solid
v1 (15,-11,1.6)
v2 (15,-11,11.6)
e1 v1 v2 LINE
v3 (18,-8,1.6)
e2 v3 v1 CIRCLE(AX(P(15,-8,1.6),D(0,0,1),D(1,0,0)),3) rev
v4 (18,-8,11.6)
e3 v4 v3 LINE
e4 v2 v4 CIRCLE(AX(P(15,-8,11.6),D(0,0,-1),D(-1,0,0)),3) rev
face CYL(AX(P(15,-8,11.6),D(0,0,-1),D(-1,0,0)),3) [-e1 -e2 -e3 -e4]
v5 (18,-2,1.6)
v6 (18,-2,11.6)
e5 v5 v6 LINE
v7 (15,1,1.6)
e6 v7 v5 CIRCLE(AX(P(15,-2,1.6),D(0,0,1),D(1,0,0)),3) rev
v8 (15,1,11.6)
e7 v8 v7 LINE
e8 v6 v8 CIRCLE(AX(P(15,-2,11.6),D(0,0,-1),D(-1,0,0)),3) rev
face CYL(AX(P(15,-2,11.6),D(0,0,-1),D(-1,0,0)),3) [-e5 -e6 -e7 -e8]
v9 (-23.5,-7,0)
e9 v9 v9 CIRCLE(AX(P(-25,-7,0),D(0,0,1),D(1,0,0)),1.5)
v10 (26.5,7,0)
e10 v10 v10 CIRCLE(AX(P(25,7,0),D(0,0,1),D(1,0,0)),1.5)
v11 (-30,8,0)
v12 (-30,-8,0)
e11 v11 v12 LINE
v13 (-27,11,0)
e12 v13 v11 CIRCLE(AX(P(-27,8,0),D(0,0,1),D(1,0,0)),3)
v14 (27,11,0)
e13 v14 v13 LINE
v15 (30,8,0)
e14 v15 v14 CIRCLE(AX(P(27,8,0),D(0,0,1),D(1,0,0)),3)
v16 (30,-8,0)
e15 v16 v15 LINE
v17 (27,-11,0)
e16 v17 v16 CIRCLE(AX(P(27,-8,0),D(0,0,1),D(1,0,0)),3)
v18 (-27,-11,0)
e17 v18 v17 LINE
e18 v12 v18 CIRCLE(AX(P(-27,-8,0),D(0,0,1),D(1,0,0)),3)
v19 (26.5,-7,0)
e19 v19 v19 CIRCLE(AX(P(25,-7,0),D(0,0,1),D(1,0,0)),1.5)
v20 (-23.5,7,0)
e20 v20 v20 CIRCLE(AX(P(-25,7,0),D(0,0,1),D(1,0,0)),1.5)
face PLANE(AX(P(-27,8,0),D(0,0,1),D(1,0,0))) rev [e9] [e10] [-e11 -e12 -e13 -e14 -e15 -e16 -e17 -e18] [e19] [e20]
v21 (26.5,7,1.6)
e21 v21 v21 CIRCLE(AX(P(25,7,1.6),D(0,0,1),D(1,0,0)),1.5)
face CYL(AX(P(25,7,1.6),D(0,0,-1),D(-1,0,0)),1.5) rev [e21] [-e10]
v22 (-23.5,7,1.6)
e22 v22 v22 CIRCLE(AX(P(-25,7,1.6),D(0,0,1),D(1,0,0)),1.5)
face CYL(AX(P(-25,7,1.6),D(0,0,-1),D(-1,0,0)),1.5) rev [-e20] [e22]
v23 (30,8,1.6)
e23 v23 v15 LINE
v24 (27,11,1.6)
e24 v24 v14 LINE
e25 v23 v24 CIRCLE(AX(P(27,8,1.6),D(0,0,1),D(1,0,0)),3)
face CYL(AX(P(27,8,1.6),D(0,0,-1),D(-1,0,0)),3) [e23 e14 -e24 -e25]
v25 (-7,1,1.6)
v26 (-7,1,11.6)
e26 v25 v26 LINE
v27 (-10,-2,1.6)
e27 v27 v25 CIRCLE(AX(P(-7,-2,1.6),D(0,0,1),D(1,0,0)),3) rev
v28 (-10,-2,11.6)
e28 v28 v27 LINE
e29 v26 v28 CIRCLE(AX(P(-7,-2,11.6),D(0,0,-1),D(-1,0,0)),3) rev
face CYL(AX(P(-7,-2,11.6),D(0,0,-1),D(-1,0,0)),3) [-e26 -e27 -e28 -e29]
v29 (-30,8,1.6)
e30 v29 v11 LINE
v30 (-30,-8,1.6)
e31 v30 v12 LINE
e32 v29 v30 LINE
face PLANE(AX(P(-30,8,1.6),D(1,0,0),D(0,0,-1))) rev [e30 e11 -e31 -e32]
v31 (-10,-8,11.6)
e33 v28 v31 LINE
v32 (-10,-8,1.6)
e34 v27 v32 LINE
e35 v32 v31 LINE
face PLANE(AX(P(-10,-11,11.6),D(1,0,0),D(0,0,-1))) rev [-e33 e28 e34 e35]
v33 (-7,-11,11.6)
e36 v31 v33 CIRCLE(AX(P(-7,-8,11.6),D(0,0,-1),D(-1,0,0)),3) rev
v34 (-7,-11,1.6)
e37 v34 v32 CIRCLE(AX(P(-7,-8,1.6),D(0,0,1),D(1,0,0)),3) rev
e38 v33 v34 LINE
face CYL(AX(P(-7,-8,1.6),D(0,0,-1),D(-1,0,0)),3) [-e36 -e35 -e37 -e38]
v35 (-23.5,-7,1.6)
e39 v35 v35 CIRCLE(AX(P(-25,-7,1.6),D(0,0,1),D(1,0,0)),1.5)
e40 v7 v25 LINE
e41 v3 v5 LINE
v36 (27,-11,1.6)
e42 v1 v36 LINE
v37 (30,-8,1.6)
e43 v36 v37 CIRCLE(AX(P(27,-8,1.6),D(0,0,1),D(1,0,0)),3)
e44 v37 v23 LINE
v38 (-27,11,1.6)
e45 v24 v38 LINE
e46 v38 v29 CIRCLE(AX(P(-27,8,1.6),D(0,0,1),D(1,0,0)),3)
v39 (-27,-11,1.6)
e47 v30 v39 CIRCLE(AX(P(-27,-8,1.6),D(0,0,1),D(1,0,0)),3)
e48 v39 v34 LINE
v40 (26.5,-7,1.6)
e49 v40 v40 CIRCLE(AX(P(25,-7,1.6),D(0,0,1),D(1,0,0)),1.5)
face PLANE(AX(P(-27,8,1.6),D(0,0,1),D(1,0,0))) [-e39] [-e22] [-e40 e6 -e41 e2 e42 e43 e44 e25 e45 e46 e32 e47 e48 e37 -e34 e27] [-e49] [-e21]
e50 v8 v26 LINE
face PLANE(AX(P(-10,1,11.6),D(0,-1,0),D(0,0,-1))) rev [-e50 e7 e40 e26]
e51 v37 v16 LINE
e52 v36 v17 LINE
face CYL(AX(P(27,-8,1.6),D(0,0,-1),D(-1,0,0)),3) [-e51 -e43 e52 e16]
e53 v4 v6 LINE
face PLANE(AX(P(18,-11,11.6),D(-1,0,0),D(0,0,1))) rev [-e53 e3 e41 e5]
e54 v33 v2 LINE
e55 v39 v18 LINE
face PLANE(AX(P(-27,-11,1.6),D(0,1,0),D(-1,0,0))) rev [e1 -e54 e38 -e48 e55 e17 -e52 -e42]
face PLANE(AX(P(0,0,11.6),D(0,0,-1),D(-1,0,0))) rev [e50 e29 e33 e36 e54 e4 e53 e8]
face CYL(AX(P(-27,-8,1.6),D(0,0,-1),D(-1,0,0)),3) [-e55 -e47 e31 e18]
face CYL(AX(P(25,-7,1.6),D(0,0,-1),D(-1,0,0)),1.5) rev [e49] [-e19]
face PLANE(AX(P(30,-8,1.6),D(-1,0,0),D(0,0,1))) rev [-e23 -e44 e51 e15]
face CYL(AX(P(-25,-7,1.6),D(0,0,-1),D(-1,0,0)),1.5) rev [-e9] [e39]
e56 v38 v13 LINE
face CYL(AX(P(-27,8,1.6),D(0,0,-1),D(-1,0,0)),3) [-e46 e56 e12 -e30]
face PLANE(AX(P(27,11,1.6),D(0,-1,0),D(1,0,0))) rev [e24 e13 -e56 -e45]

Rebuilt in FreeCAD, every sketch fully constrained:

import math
import FreeCAD as App
import Part
import Sketcher

V = App.Vector


def edges_at(feature, points):
    """Names of the edges that pass closest to the given points."""
    edges = feature.Shape.Edges
    near = lambda p: min(range(len(edges)), key=lambda i: edges[i].distToShape(Part.Vertex(*p))[0])
    return sorted({f"Edge{near(p) + 1}" for p in points})

doc = App.newDocument("Part")
body = doc.addObject("PartDesign::Body", "Body")

# Sketch on XY plane
sketch1 = body.newObject("Sketcher::SketchObject", "Sketch")
sketch1.AttachmentSupport = (doc.getObject("XY_Plane"), [""])
sketch1.MapMode = "FlatFace"
sketch1.addGeometry([
    Part.LineSegment(V(-30, 8, 0), V(-30, -8, 0)),  # 0
    Part.ArcOfCircle(Part.Circle(V(-27, -8, 0), V(0, 0, 1), 3), math.radians(180), math.radians(270)),  # 1
    Part.LineSegment(V(-27, -11, 0), V(27, -11, 0)),  # 2
    Part.ArcOfCircle(Part.Circle(V(27, -8, 0), V(0, 0, 1), 3), math.radians(-90), math.radians(0)),  # 3
    Part.LineSegment(V(30, -8, 0), V(30, 8, 0)),  # 4
    Part.ArcOfCircle(Part.Circle(V(27, 8, 0), V(0, 0, 1), 3), math.radians(0), math.radians(90)),  # 5
    Part.LineSegment(V(27, 11, 0), V(-27, 11, 0)),  # 6
    Part.ArcOfCircle(Part.Circle(V(-27, 8, 0), V(0, 0, 1), 3), math.radians(90), math.radians(180)),  # 7
    Part.Circle(V(-25, -7, 0), V(0, 0, 1), 1.5),  # 8
    Part.Circle(V(25, -7, 0), V(0, 0, 1), 1.5),  # 9
    Part.Circle(V(-25, 7, 0), V(0, 0, 1), 1.5),  # 10
    Part.Circle(V(25, 7, 0), V(0, 0, 1), 1.5),  # 11
], False)
sketch1.addConstraint([
    Sketcher.Constraint("Tangent", 0, 2, 1, 1),
    Sketcher.Constraint("Tangent", 1, 2, 2, 1),
    Sketcher.Constraint("Tangent", 2, 2, 3, 1),
    Sketcher.Constraint("Tangent", 3, 2, 4, 1),
    Sketcher.Constraint("Tangent", 4, 2, 5, 1),
    Sketcher.Constraint("Tangent", 5, 2, 6, 1),
    Sketcher.Constraint("Tangent", 6, 2, 7, 1),
    Sketcher.Constraint("Tangent", 7, 2, 0, 1),
    Sketcher.Constraint("Vertical", 0),
    Sketcher.Constraint("Horizontal", 2),
    Sketcher.Constraint("Vertical", 4),
    Sketcher.Constraint("Horizontal", 6),
    Sketcher.Constraint("Equal", 1, 3),
    Sketcher.Constraint("Equal", 3, 5),
    Sketcher.Constraint("Equal", 5, 7),
    Sketcher.Constraint("Equal", 8, 9),
    Sketcher.Constraint("Equal", 9, 10),
    Sketcher.Constraint("Equal", 10, 11),
    Sketcher.Constraint("Symmetric", 1, 3, 5, 3, -1, 1),
    Sketcher.Constraint("Symmetric", 9, 3, 10, 3, -1, 1),
    Sketcher.Constraint("Symmetric", 8, 3, 11, 3, -1, 1),
    Sketcher.Constraint("Symmetric", 8, 3, 9, 3, -2),
    Sketcher.Constraint("Diameter", 8, 3.0),
    Sketcher.Constraint("Radius", 1, 3.0),
    Sketcher.Constraint("DistanceX", 2, 1, 2, 2, 54.0),
    Sketcher.Constraint("DistanceY", 0, 2, 0, 1, 16.0),
    Sketcher.Constraint("DistanceX", 8, 3, -1, 1, 25.0),
    Sketcher.Constraint("DistanceY", 8, 3, -1, 1, 7.0),
])
pad1 = body.newObject("PartDesign::Pad", "Pad")
pad1.Profile = sketch1
pad1.Length = 1.6

# Sketch on XY plane
sketch2 = body.newObject("Sketcher::SketchObject", "Sketch001")
sketch2.AttachmentSupport = (doc.getObject("XY_Plane"), [""])
sketch2.MapMode = "FlatFace"
sketch2.AttachmentOffset = App.Placement(V(0, 0, 1.6), App.Rotation())
sketch2.addGeometry([
    Part.LineSegment(V(-10, 1, 0), V(-10, -11, 0)),
    Part.LineSegment(V(-10, -11, 0), V(18, -11, 0)),
    Part.LineSegment(V(18, -11, 0), V(18, 1, 0)),
    Part.LineSegment(V(18, 1, 0), V(-10, 1, 0)),
], False)
sketch2.addConstraint([
    Sketcher.Constraint("Coincident", 0, 2, 1, 1),
    Sketcher.Constraint("Coincident", 1, 2, 2, 1),
    Sketcher.Constraint("Coincident", 2, 2, 3, 1),
    Sketcher.Constraint("Coincident", 3, 2, 0, 1),
    Sketcher.Constraint("Vertical", 0),
    Sketcher.Constraint("Horizontal", 1),
    Sketcher.Constraint("Vertical", 2),
    Sketcher.Constraint("Horizontal", 3),
    Sketcher.Constraint("DistanceX", 1, 1, 1, 2, 28.0),
    Sketcher.Constraint("DistanceY", 0, 2, 0, 1, 12.0),
    Sketcher.Constraint("DistanceX", 0, 2, -1, 1, 10.0),
    Sketcher.Constraint("DistanceY", 0, 2, -1, 1, 11.0),
])
pad2 = body.newObject("PartDesign::Pad", "Pad001")
pad2.Profile = sketch2
pad2.Length = 10
doc.recompute()

fillet = body.newObject("PartDesign::Fillet", "Fillet")
fillet.Base = (pad2, edges_at(pad2, [
    (-10, 1, 6.6),
    (-10, -11, 6.6),
    (18, -11, 6.6),
    (18, 1, 6.6),
]))
fillet.Radius = 3

doc.recompute()
